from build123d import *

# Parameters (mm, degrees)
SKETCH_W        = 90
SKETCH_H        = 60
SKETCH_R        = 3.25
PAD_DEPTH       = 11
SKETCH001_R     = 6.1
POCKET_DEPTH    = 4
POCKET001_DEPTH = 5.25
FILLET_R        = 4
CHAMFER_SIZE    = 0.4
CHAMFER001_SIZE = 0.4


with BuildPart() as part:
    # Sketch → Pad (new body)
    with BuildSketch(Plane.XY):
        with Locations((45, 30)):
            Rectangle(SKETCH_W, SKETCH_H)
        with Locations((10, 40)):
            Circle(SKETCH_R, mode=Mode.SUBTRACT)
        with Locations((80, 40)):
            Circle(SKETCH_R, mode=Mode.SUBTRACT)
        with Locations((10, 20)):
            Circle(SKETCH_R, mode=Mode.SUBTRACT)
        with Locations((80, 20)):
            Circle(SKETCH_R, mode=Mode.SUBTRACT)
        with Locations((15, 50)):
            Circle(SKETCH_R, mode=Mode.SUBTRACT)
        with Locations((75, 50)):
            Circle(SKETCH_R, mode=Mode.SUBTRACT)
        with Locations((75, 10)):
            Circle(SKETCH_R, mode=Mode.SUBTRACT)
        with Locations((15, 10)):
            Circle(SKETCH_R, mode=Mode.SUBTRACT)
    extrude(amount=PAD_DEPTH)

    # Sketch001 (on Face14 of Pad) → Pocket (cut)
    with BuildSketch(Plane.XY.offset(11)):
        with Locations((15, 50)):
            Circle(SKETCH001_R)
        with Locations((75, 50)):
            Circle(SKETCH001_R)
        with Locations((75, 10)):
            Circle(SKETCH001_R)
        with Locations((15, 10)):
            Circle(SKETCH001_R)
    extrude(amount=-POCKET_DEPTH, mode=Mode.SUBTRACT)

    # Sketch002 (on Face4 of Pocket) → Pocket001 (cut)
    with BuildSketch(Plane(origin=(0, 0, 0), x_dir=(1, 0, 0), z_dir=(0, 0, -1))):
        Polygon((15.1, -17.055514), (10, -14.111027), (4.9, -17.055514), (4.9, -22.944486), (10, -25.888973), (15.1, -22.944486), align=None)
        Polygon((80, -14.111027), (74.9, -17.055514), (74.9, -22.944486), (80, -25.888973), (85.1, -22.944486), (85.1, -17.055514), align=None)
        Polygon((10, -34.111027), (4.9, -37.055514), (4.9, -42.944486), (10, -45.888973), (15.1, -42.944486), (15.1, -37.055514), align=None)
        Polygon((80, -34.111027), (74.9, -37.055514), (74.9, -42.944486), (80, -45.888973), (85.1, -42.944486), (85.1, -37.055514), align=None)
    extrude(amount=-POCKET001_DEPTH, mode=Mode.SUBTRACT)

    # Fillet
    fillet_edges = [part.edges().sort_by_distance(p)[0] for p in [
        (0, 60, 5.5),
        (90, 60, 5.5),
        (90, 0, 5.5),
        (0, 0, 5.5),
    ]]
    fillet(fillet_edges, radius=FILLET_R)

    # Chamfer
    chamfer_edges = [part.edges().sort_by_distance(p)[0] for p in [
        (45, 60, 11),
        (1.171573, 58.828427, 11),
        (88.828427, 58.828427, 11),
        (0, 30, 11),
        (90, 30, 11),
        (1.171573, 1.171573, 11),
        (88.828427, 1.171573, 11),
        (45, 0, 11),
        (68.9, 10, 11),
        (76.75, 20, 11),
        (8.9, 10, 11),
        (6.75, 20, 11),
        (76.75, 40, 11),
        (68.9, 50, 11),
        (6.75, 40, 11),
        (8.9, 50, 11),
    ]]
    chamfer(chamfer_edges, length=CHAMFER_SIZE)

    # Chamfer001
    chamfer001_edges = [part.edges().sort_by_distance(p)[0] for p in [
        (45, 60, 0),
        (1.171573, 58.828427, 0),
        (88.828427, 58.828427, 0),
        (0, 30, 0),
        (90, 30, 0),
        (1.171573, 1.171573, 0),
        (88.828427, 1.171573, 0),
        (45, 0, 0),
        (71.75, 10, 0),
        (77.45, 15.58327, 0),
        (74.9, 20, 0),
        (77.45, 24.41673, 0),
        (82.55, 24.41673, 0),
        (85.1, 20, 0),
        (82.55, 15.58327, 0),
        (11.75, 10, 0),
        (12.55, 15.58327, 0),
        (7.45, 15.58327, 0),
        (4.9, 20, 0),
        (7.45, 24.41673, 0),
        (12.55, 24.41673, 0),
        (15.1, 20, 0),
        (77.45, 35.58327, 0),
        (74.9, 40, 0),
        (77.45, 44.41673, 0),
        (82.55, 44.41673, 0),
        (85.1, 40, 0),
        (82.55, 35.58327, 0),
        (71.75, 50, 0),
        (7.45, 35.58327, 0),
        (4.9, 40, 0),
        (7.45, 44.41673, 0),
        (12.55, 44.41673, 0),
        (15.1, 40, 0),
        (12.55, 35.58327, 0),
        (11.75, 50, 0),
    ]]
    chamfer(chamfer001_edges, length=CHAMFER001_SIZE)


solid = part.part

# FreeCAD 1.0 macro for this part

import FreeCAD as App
import Part
import Sketcher
from FreeCAD import Vector
Q = App.Units.Quantity


def edges_at(feature, points):
    """Names of the edges that pass closest to the given points."""
    edges = feature.Shape.Edges
    near = lambda p: min(range(len(edges)), key=lambda i: edges[i].distToShape(Part.Vertex(*p))[0])
    return sorted({f"Edge{near(p) + 1}" for p in points})


def add_polygon(sketch, points):
    """Adds a closed chain of lines whose ends are joined by coincident constraints."""
    first, n = sketch.GeometryCount, len(points)
    for a, b in zip(points, points[1:] + points[:1]):
        sketch.addGeometry(Part.LineSegment(App.Vector(*a, 0), App.Vector(*b, 0)), False)
    for i in range(n):
        sketch.addConstraint(Sketcher.Constraint("Coincident", first + i, 2, first + (i + 1) % n, 1))

doc = App.newDocument("Part")
body = doc.addObject("PartDesign::Body", "Body")

sketch1 = body.newObject("Sketcher::SketchObject", "Sketch")
sketch1.AttachmentSupport = (doc.getObject("XY_Plane"), [""])
sketch1.MapMode = "FlatFace"
add_polygon(sketch1, [(0, 60), (0, 0), (90, 0), (90, 60)])
sketch1.addGeometry(Part.Circle(Vector(15, 10, 0), Vector(0, 0, 1), 3.25), False)
sketch1.addGeometry(Part.Circle(Vector(10, 20, 0), Vector(0, 0, 1), 3.25), False)
sketch1.addGeometry(Part.Circle(Vector(75, 10, 0), Vector(0, 0, 1), 3.25), False)
sketch1.addGeometry(Part.Circle(Vector(80, 20, 0), Vector(0, 0, 1), 3.25), False)
sketch1.addGeometry(Part.Circle(Vector(10, 40, 0), Vector(0, 0, 1), 3.25), False)
sketch1.addGeometry(Part.Circle(Vector(15, 50, 0), Vector(0, 0, 1), 3.25), False)
sketch1.addGeometry(Part.Circle(Vector(80, 40, 0), Vector(0, 0, 1), 3.25), False)
sketch1.addGeometry(Part.Circle(Vector(75, 50, 0), Vector(0, 0, 1), 3.25), False)
sketch1.addConstraint(Sketcher.Constraint("Vertical", 0))
sketch1.addConstraint(Sketcher.Constraint("Horizontal", 1))
sketch1.addConstraint(Sketcher.Constraint("Vertical", 2))
sketch1.addConstraint(Sketcher.Constraint("Horizontal", 3))
sketch1.addConstraint(Sketcher.Constraint("Coincident", 0, 2, -1, 1))
sketch1.addConstraint(Sketcher.Constraint("Equal", 4, 5))
sketch1.addConstraint(Sketcher.Constraint("Equal", 5, 6))
sketch1.addConstraint(Sketcher.Constraint("Equal", 6, 7))
sketch1.addConstraint(Sketcher.Constraint("Equal", 7, 8))
sketch1.addConstraint(Sketcher.Constraint("Equal", 8, 9))
sketch1.addConstraint(Sketcher.Constraint("Equal", 9, 10))
sketch1.addConstraint(Sketcher.Constraint("Equal", 10, 11))
sketch1.addConstraint(Sketcher.Constraint("Horizontal", 4, 3, 6, 3))
sketch1.addConstraint(Sketcher.Constraint("Horizontal", 5, 3, 7, 3))
sketch1.addConstraint(Sketcher.Constraint("Horizontal", 8, 3, 10, 3))
sketch1.addConstraint(Sketcher.Constraint("Horizontal", 9, 3, 11, 3))
sketch1.addConstraint(Sketcher.Constraint("Vertical", 5, 3, 8, 3))
sketch1.addConstraint(Sketcher.Constraint("Vertical", 4, 3, 9, 3))
sketch1.addConstraint(Sketcher.Constraint("Vertical", 7, 3, 10, 3))
sketch1.addConstraint(Sketcher.Constraint("Vertical", 6, 3, 11, 3))
sketch1.addConstraint(Sketcher.Constraint("Diameter", 4, Q("6.5 mm")))
sketch1.addConstraint(Sketcher.Constraint("DistanceX", 1, 1, 1, 2, Q("90 mm")))
sketch1.addConstraint(Sketcher.Constraint("DistanceY", 0, 2, 0, 1, Q("60 mm")))
sketch1.addConstraint(Sketcher.Constraint("DistanceX", -1, 1, 4, 3, Q("15 mm")))
sketch1.addConstraint(Sketcher.Constraint("DistanceY", -1, 1, 4, 3, Q("10 mm")))
sketch1.addConstraint(Sketcher.Constraint("DistanceX", -1, 1, 5, 3, Q("10 mm")))
sketch1.addConstraint(Sketcher.Constraint("DistanceY", -1, 1, 5, 3, Q("20 mm")))
sketch1.addConstraint(Sketcher.Constraint("DistanceX", -1, 1, 6, 3, Q("75 mm")))
sketch1.addConstraint(Sketcher.Constraint("DistanceX", -1, 1, 7, 3, Q("80 mm")))
sketch1.addConstraint(Sketcher.Constraint("DistanceY", -1, 1, 8, 3, Q("40 mm")))
sketch1.addConstraint(Sketcher.Constraint("DistanceY", -1, 1, 9, 3, Q("50 mm")))
pad1 = body.newObject("PartDesign::Pad", "Pad")
pad1.Profile = sketch1
pad1.Length = 11

sketch2 = body.newObject("Sketcher::SketchObject", "Sketch001")
sketch2.AttachmentSupport = (doc.getObject("XY_Plane"), [""])
sketch2.MapMode = "FlatFace"
sketch2.AttachmentOffset = App.Placement(Vector(0, 0, 11), App.Rotation())
sketch2.addGeometry(Part.Circle(Vector(15, 50, 0), Vector(0, 0, 1), 6.1), False)
sketch2.addGeometry(Part.Circle(Vector(75, 50, 0), Vector(0, 0, 1), 6.1), False)
sketch2.addGeometry(Part.Circle(Vector(75, 10, 0), Vector(0, 0, 1), 6.1), False)
sketch2.addGeometry(Part.Circle(Vector(15, 10, 0), Vector(0, 0, 1), 6.1), False)
sketch2.addConstraint(Sketcher.Constraint("Equal", 0, 1))
sketch2.addConstraint(Sketcher.Constraint("Equal", 1, 2))
sketch2.addConstraint(Sketcher.Constraint("Equal", 2, 3))
sketch2.addConstraint(Sketcher.Constraint("Horizontal", 0, 3, 1, 3))
sketch2.addConstraint(Sketcher.Constraint("Horizontal", 2, 3, 3, 3))
sketch2.addConstraint(Sketcher.Constraint("Vertical", 1, 3, 2, 3))
sketch2.addConstraint(Sketcher.Constraint("Vertical", 0, 3, 3, 3))
sketch2.addConstraint(Sketcher.Constraint("Diameter", 0, Q("12.2 mm")))
sketch2.addConstraint(Sketcher.Constraint("DistanceX", -1, 1, 0, 3, Q("15 mm")))
sketch2.addConstraint(Sketcher.Constraint("DistanceY", -1, 1, 0, 3, Q("50 mm")))
sketch2.addConstraint(Sketcher.Constraint("DistanceX", -1, 1, 1, 3, Q("75 mm")))
sketch2.addConstraint(Sketcher.Constraint("DistanceY", -1, 1, 2, 3, Q("10 mm")))
pocket1 = body.newObject("PartDesign::Pocket", "Pocket")
pocket1.Profile = sketch2
pocket1.Length = 4

sketch3 = body.newObject("Sketcher::SketchObject", "Sketch002")
sketch3.AttachmentSupport = (doc.getObject("XY_Plane"), [""])
sketch3.MapMode = "FlatFace"
add_polygon(sketch3, [(15.1, 17.055514), (10, 14.111027), (4.9, 17.055514), (4.9, 22.944486), (10, 25.888973), (15.1, 22.944486)])
add_polygon(sketch3, [(80, 14.111027), (74.9, 17.055514), (74.9, 22.944486), (80, 25.888973), (85.1, 22.944486), (85.1, 17.055514)])
add_polygon(sketch3, [(10, 34.111027), (4.9, 37.055514), (4.9, 42.944486), (10, 45.888973), (15.1, 42.944486), (15.1, 37.055514)])
add_polygon(sketch3, [(80, 34.111027), (74.9, 37.055514), (74.9, 42.944486), (80, 45.888973), (85.1, 42.944486), (85.1, 37.055514)])
sketch3.addConstraint(Sketcher.Constraint("Vertical", 2))
sketch3.addConstraint(Sketcher.Constraint("Vertical", 5))
sketch3.addConstraint(Sketcher.Constraint("Vertical", 7))
sketch3.addConstraint(Sketcher.Constraint("Vertical", 10))
sketch3.addConstraint(Sketcher.Constraint("Vertical", 13))
sketch3.addConstraint(Sketcher.Constraint("Vertical", 16))
sketch3.addConstraint(Sketcher.Constraint("Vertical", 19))
sketch3.addConstraint(Sketcher.Constraint("Vertical", 22))
sketch3.addConstraint(Sketcher.Constraint("Parallel", 0, 3))
sketch3.addConstraint(Sketcher.Constraint("Parallel", 1, 4))
sketch3.addConstraint(Sketcher.Constraint("Parallel", 4, 6))
sketch3.addConstraint(Sketcher.Constraint("Parallel", 3, 8))
sketch3.addConstraint(Sketcher.Constraint("Parallel", 6, 9))
sketch3.addConstraint(Sketcher.Constraint("Parallel", 8, 11))
sketch3.addConstraint(Sketcher.Constraint("Parallel", 9, 12))
sketch3.addConstraint(Sketcher.Constraint("Parallel", 11, 14))
sketch3.addConstraint(Sketcher.Constraint("Parallel", 12, 15))
sketch3.addConstraint(Sketcher.Constraint("Parallel", 14, 17))
sketch3.addConstraint(Sketcher.Constraint("Parallel", 15, 18))
sketch3.addConstraint(Sketcher.Constraint("Parallel", 17, 20))
sketch3.addConstraint(Sketcher.Constraint("Parallel", 18, 21))
sketch3.addConstraint(Sketcher.Constraint("Parallel", 20, 23))
sketch3.addConstraint(Sketcher.Constraint("Horizontal", 2, 2, 4, 2))
sketch3.addConstraint(Sketcher.Constraint("Horizontal", 1, 2, 5, 2))
sketch3.addConstraint(Sketcher.Constraint("Horizontal", 5, 2, 6, 2))
sketch3.addConstraint(Sketcher.Constraint("Horizontal", 4, 2, 7, 2))
sketch3.addConstraint(Sketcher.Constraint("Horizontal", 3, 2, 8, 2))
sketch3.addConstraint(Sketcher.Constraint("Horizontal", 7, 2, 9, 2))
sketch3.addConstraint(Sketcher.Constraint("Horizontal", 6, 2, 10, 2))
sketch3.addConstraint(Sketcher.Constraint("Horizontal", 13, 2, 15, 2))
sketch3.addConstraint(Sketcher.Constraint("Horizontal", 12, 2, 16, 2))
sketch3.addConstraint(Sketcher.Constraint("Horizontal", 16, 2, 18, 2))
sketch3.addConstraint(Sketcher.Constraint("Horizontal", 15, 2, 19, 2))
sketch3.addConstraint(Sketcher.Constraint("Horizontal", 14, 2, 20, 2))
sketch3.addConstraint(Sketcher.Constraint("Horizontal", 19, 2, 21, 2))
sketch3.addConstraint(Sketcher.Constraint("Horizontal", 18, 2, 22, 2))
sketch3.addConstraint(Sketcher.Constraint("Vertical", 0, 2, 3, 2))
sketch3.addConstraint(Sketcher.Constraint("Vertical", 2, 2, 12, 2))
sketch3.addConstraint(Sketcher.Constraint("Vertical", 3, 2, 14, 2))
sketch3.addConstraint(Sketcher.Constraint("Vertical", 7, 2, 18, 2))
sketch3.addConstraint(Sketcher.Constraint("Equal", 10, 13))
sketch3.addConstraint(Sketcher.Constraint("Angle", 0, Q("-149.999995 deg")))
sketch3.addConstraint(Sketcher.Constraint("DistanceX", -1, 1, 0, 2, Q("10 mm")))
sketch3.addConstraint(Sketcher.Constraint("DistanceX", -1, 1, 8, 2, Q("80 mm")))
sketch3.addConstraint(Sketcher.Constraint("DistanceY", 1, 2, 12, 2, Q("20 mm")))
sketch3.addConstraint(Sketcher.Constraint("DistanceX", -1, 1, 1, 2, Q("4.9 mm")))
sketch3.addConstraint(Sketcher.Constraint("DistanceY", 13, 1, 13, 2, Q("5.888972 mm")))
sketch3.addConstraint(Sketcher.Constraint("DistanceY", -1, 1, 0, 2, Q("14.111027 mm")))
pocket2 = body.newObject("PartDesign::Pocket", "Pocket001")
pocket2.Profile = sketch3
pocket2.Length = 5.25
pocket2.Reversed = True
doc.recompute()

fillet = body.newObject("PartDesign::Fillet", "Fillet")
fillet.Base = (pocket2, edges_at(pocket2, [
    (0, 60, 5.5),
    (90, 60, 5.5),
    (90, 0, 5.5),
    (0, 0, 5.5),
]))
fillet.Radius = 4
doc.recompute()

chamfer = body.newObject("PartDesign::Chamfer", "Chamfer")
chamfer.Base = (fillet, edges_at(fillet, [
    (45, 60, 11),
    (1.172, 58.828, 11),
    (88.828, 58.828, 11),
    (0, 30, 11),
    (90, 30, 11),
    (1.172, 1.172, 11),
    (88.828, 1.172, 11),
    (45, 0, 11),
    (68.9, 10, 11),
    (76.75, 20, 11),
    (8.9, 10, 11),
    (6.75, 20, 11),
    (76.75, 40, 11),
    (68.9, 50, 11),
    (6.75, 40, 11),
    (8.9, 50, 11),
]))
chamfer.Size = 0.4
doc.recompute()

chamfer2 = body.newObject("PartDesign::Chamfer", "Chamfer001")
chamfer2.Base = (chamfer, edges_at(chamfer, [
    (45, 60, 0),
    (1.172, 58.828, 0),
    (88.828, 58.828, 0),
    (0, 30, 0),
    (90, 30, 0),
    (1.172, 1.172, 0),
    (88.828, 1.172, 0),
    (45, 0, 0),
    (71.75, 10, 0),
    (77.45, 15.583, 0),
    (74.9, 20, 0),
    (77.45, 24.417, 0),
    (82.55, 24.417, 0),
    (85.1, 20, 0),
    (82.55, 15.583, 0),
    (11.75, 10, 0),
    (12.55, 15.583, 0),
    (7.45, 15.583, 0),
    (4.9, 20, 0),
    (7.45, 24.417, 0),
    (12.55, 24.417, 0),
    (15.1, 20, 0),
    (77.45, 35.583, 0),
    (74.9, 40, 0),
    (77.45, 44.417, 0),
    (82.55, 44.417, 0),
    (85.1, 40, 0),
    (82.55, 35.583, 0),
    (71.75, 50, 0),
    (7.45, 35.583, 0),
    (4.9, 40, 0),
    (7.45, 44.417, 0),
    (12.55, 44.417, 0),
    (15.1, 40, 0),
    (12.55, 35.583, 0),
    (11.75, 50, 0),
]))
chamfer2.Size = 0.4

doc.recompute()
